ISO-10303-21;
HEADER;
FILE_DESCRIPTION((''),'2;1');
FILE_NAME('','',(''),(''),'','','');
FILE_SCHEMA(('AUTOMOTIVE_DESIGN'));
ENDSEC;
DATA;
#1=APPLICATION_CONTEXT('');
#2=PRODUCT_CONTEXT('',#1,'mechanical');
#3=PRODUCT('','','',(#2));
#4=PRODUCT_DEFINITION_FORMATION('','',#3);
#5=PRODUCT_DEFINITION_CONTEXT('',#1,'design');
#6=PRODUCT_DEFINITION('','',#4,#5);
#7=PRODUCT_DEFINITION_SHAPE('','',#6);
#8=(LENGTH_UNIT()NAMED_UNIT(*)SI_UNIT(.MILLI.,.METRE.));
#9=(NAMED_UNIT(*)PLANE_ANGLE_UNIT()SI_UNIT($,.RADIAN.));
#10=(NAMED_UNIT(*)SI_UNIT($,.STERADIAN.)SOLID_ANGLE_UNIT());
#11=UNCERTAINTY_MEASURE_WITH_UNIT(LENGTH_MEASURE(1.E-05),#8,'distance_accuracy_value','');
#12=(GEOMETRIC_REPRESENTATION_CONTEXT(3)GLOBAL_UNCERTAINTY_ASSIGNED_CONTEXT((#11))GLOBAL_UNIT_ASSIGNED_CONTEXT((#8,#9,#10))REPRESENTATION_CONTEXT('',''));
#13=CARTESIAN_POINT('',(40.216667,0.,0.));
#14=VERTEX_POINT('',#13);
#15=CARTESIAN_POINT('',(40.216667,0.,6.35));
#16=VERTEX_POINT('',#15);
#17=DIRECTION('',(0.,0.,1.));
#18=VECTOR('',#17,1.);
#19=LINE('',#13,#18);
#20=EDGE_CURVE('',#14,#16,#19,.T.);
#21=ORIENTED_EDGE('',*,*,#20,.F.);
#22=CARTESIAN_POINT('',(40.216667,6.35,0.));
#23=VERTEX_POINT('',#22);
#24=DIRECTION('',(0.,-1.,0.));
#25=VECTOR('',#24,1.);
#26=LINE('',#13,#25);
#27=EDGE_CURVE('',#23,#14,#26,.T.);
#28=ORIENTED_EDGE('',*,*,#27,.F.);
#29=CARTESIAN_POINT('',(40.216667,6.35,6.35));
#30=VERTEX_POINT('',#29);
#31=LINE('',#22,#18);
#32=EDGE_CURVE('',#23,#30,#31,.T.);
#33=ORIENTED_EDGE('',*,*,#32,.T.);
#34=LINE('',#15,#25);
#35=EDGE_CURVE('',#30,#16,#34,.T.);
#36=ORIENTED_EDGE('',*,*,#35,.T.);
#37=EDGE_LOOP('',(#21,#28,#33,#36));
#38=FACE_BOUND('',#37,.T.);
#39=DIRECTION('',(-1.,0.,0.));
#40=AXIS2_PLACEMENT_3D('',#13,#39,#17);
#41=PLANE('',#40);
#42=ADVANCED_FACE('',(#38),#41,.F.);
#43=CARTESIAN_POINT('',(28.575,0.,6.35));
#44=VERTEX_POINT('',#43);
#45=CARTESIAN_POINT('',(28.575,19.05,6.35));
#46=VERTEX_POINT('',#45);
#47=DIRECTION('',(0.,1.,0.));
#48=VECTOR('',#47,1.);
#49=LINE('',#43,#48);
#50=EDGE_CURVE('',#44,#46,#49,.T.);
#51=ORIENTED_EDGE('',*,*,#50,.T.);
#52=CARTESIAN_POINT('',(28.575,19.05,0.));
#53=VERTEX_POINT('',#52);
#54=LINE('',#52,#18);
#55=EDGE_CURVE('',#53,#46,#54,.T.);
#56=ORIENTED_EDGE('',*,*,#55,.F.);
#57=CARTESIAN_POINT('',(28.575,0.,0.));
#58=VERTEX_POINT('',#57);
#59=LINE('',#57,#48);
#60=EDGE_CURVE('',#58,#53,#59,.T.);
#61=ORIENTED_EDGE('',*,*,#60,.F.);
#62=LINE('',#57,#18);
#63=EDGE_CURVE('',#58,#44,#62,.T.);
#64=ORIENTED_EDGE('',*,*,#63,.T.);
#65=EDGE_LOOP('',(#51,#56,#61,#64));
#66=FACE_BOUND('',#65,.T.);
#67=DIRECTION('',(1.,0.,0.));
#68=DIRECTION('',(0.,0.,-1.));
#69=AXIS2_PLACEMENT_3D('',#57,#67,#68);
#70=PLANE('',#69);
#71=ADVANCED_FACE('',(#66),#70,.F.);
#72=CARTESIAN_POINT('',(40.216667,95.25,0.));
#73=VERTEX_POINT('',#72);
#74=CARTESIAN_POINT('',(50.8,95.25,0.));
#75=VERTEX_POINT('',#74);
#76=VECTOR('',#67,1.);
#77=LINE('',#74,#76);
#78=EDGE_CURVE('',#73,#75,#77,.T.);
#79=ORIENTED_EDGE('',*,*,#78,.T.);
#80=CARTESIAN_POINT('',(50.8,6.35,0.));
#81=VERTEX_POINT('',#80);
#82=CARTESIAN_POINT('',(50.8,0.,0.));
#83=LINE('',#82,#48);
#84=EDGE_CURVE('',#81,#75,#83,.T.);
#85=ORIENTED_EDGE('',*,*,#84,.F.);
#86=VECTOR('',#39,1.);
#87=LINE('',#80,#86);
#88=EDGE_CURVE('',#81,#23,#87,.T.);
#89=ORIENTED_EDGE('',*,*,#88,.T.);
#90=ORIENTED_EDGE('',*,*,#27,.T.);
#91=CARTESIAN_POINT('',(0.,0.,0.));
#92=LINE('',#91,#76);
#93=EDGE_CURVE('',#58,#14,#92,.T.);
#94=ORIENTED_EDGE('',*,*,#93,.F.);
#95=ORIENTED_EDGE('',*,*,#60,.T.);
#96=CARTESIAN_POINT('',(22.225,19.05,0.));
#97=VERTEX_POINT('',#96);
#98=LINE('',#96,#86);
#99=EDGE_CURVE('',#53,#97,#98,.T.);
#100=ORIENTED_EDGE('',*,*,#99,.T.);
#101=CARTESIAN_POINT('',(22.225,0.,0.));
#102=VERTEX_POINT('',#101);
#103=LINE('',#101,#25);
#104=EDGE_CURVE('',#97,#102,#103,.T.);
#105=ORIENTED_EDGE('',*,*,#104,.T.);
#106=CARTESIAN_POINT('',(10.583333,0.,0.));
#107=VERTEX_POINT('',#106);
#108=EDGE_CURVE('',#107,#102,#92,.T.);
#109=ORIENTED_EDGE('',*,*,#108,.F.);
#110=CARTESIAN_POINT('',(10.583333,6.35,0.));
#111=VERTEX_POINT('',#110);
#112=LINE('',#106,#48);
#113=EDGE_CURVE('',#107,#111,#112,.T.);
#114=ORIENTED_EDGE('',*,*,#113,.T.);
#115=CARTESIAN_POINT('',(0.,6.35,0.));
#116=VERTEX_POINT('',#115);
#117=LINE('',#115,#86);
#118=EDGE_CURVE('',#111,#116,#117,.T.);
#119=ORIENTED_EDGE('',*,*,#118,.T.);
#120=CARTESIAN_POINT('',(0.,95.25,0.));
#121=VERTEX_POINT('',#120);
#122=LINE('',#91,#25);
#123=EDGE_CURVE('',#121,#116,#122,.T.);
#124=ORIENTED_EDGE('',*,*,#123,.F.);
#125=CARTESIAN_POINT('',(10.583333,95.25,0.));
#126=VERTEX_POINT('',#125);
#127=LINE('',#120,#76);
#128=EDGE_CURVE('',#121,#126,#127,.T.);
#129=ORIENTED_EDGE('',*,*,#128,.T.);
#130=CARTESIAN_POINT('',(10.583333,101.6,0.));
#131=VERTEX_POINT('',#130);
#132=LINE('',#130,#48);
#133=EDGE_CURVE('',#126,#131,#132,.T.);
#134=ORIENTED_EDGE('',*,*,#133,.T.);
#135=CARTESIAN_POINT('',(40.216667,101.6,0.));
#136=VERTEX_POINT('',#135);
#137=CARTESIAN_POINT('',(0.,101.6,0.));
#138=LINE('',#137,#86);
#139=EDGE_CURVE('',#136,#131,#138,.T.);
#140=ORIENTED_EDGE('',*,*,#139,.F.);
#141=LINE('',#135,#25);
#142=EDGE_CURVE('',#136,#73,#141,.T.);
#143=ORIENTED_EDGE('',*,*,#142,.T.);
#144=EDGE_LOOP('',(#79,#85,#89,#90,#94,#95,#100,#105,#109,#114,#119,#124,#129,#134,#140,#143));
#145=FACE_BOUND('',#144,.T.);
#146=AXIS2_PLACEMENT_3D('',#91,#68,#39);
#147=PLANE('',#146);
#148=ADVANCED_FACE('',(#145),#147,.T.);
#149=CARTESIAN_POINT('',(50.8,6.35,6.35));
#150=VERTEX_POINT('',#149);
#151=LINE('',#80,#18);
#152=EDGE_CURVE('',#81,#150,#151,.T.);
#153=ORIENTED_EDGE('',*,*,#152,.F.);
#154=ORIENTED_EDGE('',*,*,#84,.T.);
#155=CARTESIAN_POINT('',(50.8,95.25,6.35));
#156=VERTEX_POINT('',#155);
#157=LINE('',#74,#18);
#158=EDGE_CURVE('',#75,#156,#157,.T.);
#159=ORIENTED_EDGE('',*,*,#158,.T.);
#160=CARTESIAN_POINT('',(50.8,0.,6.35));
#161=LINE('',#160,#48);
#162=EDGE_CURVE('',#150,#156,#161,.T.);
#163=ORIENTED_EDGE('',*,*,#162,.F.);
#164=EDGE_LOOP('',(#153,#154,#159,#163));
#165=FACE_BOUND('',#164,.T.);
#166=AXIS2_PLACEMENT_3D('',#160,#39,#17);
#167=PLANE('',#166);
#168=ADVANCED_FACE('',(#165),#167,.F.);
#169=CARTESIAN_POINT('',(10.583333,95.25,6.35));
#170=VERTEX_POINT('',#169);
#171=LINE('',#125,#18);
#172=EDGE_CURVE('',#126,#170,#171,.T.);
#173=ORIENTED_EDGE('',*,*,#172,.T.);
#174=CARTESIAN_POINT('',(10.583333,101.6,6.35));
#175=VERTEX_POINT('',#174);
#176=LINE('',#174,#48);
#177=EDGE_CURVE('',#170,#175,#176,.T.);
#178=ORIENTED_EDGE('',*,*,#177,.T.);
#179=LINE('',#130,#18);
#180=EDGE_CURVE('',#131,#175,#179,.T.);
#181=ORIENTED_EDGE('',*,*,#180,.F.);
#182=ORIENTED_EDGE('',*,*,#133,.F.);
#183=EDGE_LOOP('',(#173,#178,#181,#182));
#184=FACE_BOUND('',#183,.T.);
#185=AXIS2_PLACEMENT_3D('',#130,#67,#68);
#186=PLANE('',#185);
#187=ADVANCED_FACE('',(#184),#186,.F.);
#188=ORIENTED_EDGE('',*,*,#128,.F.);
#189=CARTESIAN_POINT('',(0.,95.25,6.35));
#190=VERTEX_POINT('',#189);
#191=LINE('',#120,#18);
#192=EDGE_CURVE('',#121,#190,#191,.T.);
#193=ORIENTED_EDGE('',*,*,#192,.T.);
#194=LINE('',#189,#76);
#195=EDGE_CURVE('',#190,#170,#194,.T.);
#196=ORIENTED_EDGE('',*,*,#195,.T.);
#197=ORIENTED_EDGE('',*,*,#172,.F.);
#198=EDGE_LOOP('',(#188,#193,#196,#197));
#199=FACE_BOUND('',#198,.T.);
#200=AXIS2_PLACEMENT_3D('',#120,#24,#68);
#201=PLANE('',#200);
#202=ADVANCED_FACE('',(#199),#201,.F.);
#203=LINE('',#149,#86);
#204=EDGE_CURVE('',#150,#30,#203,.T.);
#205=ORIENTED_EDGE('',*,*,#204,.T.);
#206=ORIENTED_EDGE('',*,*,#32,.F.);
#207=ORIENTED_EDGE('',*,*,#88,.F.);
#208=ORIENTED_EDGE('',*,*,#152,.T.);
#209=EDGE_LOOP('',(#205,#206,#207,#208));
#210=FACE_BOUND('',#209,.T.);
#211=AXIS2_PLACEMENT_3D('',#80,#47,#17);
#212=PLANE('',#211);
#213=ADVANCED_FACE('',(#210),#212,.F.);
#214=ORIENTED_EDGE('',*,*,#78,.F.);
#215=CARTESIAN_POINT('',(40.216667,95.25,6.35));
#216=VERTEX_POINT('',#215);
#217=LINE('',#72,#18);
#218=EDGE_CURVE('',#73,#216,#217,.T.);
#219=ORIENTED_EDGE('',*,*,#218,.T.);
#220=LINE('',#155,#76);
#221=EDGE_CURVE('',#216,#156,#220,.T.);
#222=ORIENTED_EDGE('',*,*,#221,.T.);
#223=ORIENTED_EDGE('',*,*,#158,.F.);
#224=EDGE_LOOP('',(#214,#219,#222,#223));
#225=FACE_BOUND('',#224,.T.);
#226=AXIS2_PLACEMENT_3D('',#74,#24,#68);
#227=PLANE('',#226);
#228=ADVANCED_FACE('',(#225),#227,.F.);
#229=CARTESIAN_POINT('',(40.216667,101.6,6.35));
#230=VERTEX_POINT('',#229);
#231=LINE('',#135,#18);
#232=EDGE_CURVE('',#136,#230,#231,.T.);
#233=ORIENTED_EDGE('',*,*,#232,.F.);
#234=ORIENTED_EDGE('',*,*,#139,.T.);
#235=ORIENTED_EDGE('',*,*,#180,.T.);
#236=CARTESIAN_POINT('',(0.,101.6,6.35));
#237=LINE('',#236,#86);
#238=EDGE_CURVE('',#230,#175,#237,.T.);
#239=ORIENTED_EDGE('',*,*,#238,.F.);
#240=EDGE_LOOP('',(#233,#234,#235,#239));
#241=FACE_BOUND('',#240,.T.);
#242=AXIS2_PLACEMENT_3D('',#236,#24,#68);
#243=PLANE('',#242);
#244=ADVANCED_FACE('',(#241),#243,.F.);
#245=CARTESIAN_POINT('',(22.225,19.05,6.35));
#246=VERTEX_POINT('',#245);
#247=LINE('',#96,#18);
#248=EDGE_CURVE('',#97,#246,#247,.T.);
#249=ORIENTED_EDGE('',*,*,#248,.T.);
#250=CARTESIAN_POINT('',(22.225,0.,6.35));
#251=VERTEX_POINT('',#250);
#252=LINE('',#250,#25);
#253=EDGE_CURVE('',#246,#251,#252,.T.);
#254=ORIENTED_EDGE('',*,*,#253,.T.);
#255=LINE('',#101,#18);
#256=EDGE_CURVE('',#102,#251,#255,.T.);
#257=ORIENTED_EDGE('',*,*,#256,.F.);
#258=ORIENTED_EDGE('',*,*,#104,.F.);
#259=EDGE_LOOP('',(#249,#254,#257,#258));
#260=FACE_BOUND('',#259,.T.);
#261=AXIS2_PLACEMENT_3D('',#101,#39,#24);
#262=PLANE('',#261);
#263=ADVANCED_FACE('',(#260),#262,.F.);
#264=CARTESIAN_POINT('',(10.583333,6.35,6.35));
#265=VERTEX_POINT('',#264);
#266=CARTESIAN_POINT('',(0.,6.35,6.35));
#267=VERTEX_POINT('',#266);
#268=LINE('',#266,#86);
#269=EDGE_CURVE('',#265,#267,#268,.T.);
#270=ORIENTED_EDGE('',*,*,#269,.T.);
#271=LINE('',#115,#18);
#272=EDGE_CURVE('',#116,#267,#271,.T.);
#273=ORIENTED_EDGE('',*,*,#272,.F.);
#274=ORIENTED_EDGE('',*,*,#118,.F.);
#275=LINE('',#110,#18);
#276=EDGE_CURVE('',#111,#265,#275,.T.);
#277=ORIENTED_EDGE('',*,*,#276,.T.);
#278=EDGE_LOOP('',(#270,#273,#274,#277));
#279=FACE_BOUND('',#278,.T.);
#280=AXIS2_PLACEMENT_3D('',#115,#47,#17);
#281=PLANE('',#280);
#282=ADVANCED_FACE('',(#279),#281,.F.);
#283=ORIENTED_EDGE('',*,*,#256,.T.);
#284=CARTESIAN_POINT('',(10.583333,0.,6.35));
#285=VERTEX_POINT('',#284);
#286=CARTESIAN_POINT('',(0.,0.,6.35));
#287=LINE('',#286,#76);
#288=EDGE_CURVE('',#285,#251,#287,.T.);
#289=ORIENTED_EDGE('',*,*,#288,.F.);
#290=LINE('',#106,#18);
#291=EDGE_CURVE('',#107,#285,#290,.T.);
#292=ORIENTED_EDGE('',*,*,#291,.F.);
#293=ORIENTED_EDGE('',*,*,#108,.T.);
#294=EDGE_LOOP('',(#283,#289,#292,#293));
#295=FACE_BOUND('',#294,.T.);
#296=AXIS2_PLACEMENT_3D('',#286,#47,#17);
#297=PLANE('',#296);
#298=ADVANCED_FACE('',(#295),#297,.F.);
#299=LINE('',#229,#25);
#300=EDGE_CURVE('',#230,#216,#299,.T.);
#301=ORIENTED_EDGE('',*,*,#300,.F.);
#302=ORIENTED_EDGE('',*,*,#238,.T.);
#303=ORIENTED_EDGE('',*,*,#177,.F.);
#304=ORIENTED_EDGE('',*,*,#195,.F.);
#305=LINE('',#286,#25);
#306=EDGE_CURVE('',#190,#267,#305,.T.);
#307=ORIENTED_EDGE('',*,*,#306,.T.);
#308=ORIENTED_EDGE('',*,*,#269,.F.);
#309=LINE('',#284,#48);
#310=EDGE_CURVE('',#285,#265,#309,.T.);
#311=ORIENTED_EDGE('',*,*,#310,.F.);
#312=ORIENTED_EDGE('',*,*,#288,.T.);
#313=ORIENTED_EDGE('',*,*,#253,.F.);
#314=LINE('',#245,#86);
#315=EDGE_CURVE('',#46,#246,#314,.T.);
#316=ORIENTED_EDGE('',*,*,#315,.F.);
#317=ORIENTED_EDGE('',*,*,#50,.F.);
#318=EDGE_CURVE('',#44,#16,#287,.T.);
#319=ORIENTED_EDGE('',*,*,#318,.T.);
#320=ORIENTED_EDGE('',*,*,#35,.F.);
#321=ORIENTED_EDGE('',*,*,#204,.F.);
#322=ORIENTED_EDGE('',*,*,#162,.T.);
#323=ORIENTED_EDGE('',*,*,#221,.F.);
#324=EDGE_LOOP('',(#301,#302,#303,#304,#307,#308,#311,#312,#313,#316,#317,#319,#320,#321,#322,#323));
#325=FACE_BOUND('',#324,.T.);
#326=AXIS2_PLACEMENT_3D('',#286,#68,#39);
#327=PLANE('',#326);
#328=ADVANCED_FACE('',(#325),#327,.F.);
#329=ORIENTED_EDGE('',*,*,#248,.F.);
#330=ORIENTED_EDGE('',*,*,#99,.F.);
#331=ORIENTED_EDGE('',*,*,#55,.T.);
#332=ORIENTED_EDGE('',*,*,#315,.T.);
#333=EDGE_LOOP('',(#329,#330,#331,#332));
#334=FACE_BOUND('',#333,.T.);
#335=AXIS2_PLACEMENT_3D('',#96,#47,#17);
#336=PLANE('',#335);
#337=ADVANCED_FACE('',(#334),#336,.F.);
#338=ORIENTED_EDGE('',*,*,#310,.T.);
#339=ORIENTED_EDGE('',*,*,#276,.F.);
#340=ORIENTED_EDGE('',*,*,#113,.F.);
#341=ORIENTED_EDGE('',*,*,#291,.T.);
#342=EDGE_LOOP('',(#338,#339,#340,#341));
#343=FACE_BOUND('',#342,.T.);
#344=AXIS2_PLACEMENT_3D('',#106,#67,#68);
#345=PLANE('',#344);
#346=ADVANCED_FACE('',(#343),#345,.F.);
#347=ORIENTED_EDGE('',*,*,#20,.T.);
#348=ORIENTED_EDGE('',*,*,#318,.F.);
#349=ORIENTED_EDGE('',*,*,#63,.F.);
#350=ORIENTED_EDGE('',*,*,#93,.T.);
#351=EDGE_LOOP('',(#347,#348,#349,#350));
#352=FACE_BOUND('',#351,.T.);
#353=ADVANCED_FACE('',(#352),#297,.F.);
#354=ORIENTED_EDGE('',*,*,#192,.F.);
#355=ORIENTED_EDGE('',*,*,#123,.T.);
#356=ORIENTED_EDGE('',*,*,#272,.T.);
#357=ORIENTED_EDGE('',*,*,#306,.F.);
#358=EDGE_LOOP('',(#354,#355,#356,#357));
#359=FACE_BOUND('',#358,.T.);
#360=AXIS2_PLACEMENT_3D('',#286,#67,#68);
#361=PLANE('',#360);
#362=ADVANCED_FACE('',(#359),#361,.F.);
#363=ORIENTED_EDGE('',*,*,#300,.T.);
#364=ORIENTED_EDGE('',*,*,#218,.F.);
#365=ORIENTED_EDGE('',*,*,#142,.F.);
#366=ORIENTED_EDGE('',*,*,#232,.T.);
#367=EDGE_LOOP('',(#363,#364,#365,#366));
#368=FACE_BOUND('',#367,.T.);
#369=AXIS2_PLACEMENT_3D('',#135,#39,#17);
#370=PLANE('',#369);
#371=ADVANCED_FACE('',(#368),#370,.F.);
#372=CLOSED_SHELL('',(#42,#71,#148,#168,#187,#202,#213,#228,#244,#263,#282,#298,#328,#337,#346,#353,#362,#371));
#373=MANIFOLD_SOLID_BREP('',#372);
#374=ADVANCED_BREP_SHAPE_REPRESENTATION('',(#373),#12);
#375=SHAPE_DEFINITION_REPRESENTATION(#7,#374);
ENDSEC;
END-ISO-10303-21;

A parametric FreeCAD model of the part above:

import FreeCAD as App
import Part
import Sketcher
Q = App.Units.Quantity

doc = App.newDocument("Part")
body = doc.addObject("PartDesign::Body", "Body")

sketch1 = body.newObject("Sketcher::SketchObject", "Sketch")
sketch1.AttachmentSupport = (doc.getObject("XY_Plane"), [""])
sketch1.MapMode = "FlatFace"
sketch1.addGeometry([
    Part.LineSegment(App.Vector(0, 102, 0), App.Vector(0, 0, 0)),
    Part.LineSegment(App.Vector(0, 0, 0), App.Vector(51, 0, 0)),
    Part.LineSegment(App.Vector(51, 0, 0), App.Vector(51, 102, 0)),
    Part.LineSegment(App.Vector(51, 102, 0), App.Vector(0, 102, 0)),
], False)
sketch1.addConstraint([
    Sketcher.Constraint("Coincident", 0, 2, 1, 1),
    Sketcher.Constraint("Coincident", 1, 2, 2, 1),
    Sketcher.Constraint("Coincident", 2, 2, 3, 1),
    Sketcher.Constraint("Coincident", 3, 2, 0, 1),
    Sketcher.Constraint("Vertical", 0),
    Sketcher.Constraint("Horizontal", 1),
    Sketcher.Constraint("Vertical", 2),
    Sketcher.Constraint("Horizontal", 3),
    Sketcher.Constraint("Coincident", 0, 2, -1, 1),
    Sketcher.Constraint("DistanceX", 1, 1, 1, 2, Q("2 in")),
    Sketcher.Constraint("DistanceY", 0, 2, 0, 1, Q("4 in")),
])
pad1 = body.newObject("PartDesign::Pad", "Pad")
pad1.Profile = sketch1
pad1.Length = Q("0.25 in")

sketch2 = body.newObject("Sketcher::SketchObject", "Sketch001")
sketch2.AttachmentSupport = (doc.getObject("XY_Plane"), [""])
sketch2.MapMode = "FlatFace"
sketch2.AttachmentOffset = App.Placement(App.Vector(0, 0, 0.25 * 25.4), App.Rotation())
sketch2.addGeometry([
    Part.LineSegment(App.Vector(22, 19, 0), App.Vector(22, 0, 0)),
    Part.LineSegment(App.Vector(22, 0, 0), App.Vector(29, 0, 0)),
    Part.LineSegment(App.Vector(29, 0, 0), App.Vector(29, 19, 0)),
    Part.LineSegment(App.Vector(29, 19, 0), App.Vector(22, 19, 0)),
    Part.LineSegment(App.Vector(0, 102, 0), App.Vector(0, 95, 0)),
    Part.LineSegment(App.Vector(0, 95, 0), App.Vector(11, 95, 0)),
    Part.LineSegment(App.Vector(11, 95, 0), App.Vector(11, 102, 0)),
    Part.LineSegment(App.Vector(11, 102, 0), App.Vector(0, 102, 0)),
    Part.LineSegment(App.Vector(40, 102, 0), App.Vector(40, 95, 0)),
    Part.LineSegment(App.Vector(40, 95, 0), App.Vector(51, 95, 0)),
    Part.LineSegment(App.Vector(51, 95, 0), App.Vector(51, 102, 0)),
    Part.LineSegment(App.Vector(51, 102, 0), App.Vector(40, 102, 0)),
    Part.LineSegment(App.Vector(40, 6, 0), App.Vector(40, 0, 0)),
    Part.LineSegment(App.Vector(40, 0, 0), App.Vector(51, 0, 0)),
    Part.LineSegment(App.Vector(51, 0, 0), App.Vector(51, 6, 0)),
    Part.LineSegment(App.Vector(51, 6, 0), App.Vector(40, 6, 0)),
    Part.LineSegment(App.Vector(0, 6, 0), App.Vector(0, 0, 0)),
    Part.LineSegment(App.Vector(0, 0, 0), App.Vector(11, 0, 0)),
    Part.LineSegment(App.Vector(11, 0, 0), App.Vector(11, 6, 0)),
    Part.LineSegment(App.Vector(11, 6, 0), App.Vector(0, 6, 0)),
], False)
sketch2.addConstraint([
    Sketcher.Constraint("Coincident", 0, 2, 1, 1),
    Sketcher.Constraint("Coincident", 1, 2, 2, 1),
    Sketcher.Constraint("Coincident", 2, 2, 3, 1),
    Sketcher.Constraint("Coincident", 3, 2, 0, 1),
    Sketcher.Constraint("Coincident", 4, 2, 5, 1),
    Sketcher.Constraint("Coincident", 5, 2, 6, 1),
    Sketcher.Constraint("Coincident", 6, 2, 7, 1),
    Sketcher.Constraint("Coincident", 7, 2, 4, 1),
    Sketcher.Constraint("Coincident", 8, 2, 9, 1),
    Sketcher.Constraint("Coincident", 9, 2, 10, 1),
    Sketcher.Constraint("Coincident", 10, 2, 11, 1),
    Sketcher.Constraint("Coincident", 11, 2, 8, 1),
    Sketcher.Constraint("Coincident", 12, 2, 13, 1),
    Sketcher.Constraint("Coincident", 13, 2, 14, 1),
    Sketcher.Constraint("Coincident", 14, 2, 15, 1),
    Sketcher.Constraint("Coincident", 15, 2, 12, 1),
    Sketcher.Constraint("Coincident", 16, 2, 17, 1),
    Sketcher.Constraint("Coincident", 17, 2, 18, 1),
    Sketcher.Constraint("Coincident", 18, 2, 19, 1),
    Sketcher.Constraint("Coincident", 19, 2, 16, 1),
    Sketcher.Constraint("Vertical", 0),
    Sketcher.Constraint("Horizontal", 1),
    Sketcher.Constraint("Vertical", 2),
    Sketcher.Constraint("Horizontal", 3),
    Sketcher.Constraint("Vertical", 4),
    Sketcher.Constraint("Horizontal", 5),
    Sketcher.Constraint("Vertical", 6),
    Sketcher.Constraint("Horizontal", 7),
    Sketcher.Constraint("Vertical", 8),
    Sketcher.Constraint("Horizontal", 9),
    Sketcher.Constraint("Vertical", 10),
    Sketcher.Constraint("Horizontal", 11),
    Sketcher.Constraint("Vertical", 12),
    Sketcher.Constraint("Horizontal", 13),
    Sketcher.Constraint("Vertical", 14),
    Sketcher.Constraint("Horizontal", 15),
    Sketcher.Constraint("Vertical", 16),
    Sketcher.Constraint("Horizontal", 17),
    Sketcher.Constraint("Vertical", 18),
    Sketcher.Constraint("Horizontal", 19),
    Sketcher.Constraint("Coincident", 16, 2, -1, 1),
    Sketcher.Constraint("PointOnObject", 0, 2, -1),
    Sketcher.Constraint("PointOnObject", 4, 2, -2),
    Sketcher.Constraint("PointOnObject", 12, 2, -1),
    Sketcher.Constraint("Horizontal", 5, 2, 8, 2),
    Sketcher.Constraint("Horizontal", 7, 2, 10, 2),
    Sketcher.Constraint("Horizontal", 15, 2, 18, 2),
    Sketcher.Constraint("Vertical", 11, 2, 12, 2),
    Sketcher.Constraint("Vertical", 10, 2, 13, 2),
    Sketcher.Constraint("Vertical", 6, 2, 17, 2),
    Sketcher.Constraint("Equal", 7, 9),
    Sketcher.Constraint("Equal", 3, 4),
    Sketcher.Constraint("Equal", 10, 12),
    Sketcher.Constraint("DistanceY", -1, 1, 6, 2, Q("4 in")),
    Sketcher.Constraint("DistanceX", -1, 1, 9, 2, Q("2 in")),
    Sketcher.Constraint("DistanceY", 3, 2, 4, 2, Q("3 in")),
    Sketcher.Constraint("DistanceX", 1, 1, 1, 2, Q("0.25 in")),
    Sketcher.Constraint("DistanceX", -1, 1, 0, 2, Q("0.875 in")),
    Sketcher.Constraint("DistanceX", 5, 1, 5, 2, Q("10.583333 mm")),
])
pocket1 = body.newObject("PartDesign::Pocket", "Pocket")
pocket1.Profile = sketch2
pocket1.Length = Q("0.25 in")

doc.recompute()
